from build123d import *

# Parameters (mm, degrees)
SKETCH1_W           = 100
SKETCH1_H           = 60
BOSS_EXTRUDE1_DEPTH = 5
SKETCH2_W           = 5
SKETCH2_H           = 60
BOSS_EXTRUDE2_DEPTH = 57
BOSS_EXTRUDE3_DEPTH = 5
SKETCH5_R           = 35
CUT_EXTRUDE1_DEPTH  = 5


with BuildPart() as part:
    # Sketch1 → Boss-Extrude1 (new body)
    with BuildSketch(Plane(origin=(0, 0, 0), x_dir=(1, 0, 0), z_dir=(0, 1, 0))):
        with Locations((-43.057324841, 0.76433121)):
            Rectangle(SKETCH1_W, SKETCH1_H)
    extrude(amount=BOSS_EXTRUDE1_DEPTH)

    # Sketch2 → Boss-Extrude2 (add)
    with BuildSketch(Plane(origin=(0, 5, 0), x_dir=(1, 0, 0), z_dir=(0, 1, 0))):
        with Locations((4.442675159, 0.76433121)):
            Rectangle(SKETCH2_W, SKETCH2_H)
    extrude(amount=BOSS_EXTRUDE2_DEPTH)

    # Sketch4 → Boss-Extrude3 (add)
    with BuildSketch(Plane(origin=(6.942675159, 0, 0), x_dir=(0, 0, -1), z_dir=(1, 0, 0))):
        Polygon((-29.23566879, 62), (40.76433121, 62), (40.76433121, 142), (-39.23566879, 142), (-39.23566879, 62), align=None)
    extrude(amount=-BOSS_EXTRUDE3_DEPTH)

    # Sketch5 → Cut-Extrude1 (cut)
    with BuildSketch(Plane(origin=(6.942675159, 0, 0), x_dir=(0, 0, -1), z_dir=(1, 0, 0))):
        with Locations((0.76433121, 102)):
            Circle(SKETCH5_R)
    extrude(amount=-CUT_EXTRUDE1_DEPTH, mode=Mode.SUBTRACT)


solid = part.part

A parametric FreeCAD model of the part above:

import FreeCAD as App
import Part
import Sketcher
from FreeCAD import Vector


def add_polygon(sketch, points):
    """Adds a closed chain of lines whose ends are joined by coincident constraints."""
    first, n = sketch.GeometryCount, len(points)
    for a, b in zip(points, points[1:] + points[:1]):
        sketch.addGeometry(Part.LineSegment(App.Vector(*a, 0), App.Vector(*b, 0)), False)
    for i in range(n):
        sketch.addConstraint(Sketcher.Constraint("Coincident", first + i, 2, first + (i + 1) % n, 1))

doc = App.newDocument("Part")
body = doc.addObject("PartDesign::Body", "Body")

sketch1 = body.newObject("Sketcher::SketchObject", "Sketch")
sketch1.AttachmentSupport = (doc.getObject("XZ_Plane"), [""])
sketch1.MapMode = "FlatFace"
add_polygon(sketch1, [(-93.057325, -30.764331), (-93.057325, 29.235669), (6.942675, 29.235669), (6.942675, -30.764331)])
sketch1.addConstraint([
    Sketcher.Constraint("Vertical", 0),
    Sketcher.Constraint("Horizontal", 1),
    Sketcher.Constraint("Vertical", 2),
    Sketcher.Constraint("Horizontal", 3),
    Sketcher.Constraint("DistanceX", 1, 1, 1, 2, 100.0),
    Sketcher.Constraint("DistanceY", 0, 1, 0, 2, 60.0),
    Sketcher.Constraint("DistanceY", -1, 1, 0, 2, 29.235669),
    Sketcher.Constraint("DistanceX", 0, 2, -1, 1, 93.057325),
])
pad1 = body.newObject("PartDesign::Pad", "Pad")
pad1.Profile = sketch1
pad1.Length = 5
pad1.Reversed = True

sketch2 = body.newObject("Sketcher::SketchObject", "Sketch001")
sketch2.AttachmentSupport = (doc.getObject("XZ_Plane"), [""])
sketch2.MapMode = "FlatFace"
sketch2.AttachmentOffset = App.Placement(Vector(0, 0, -5), App.Rotation())
add_polygon(sketch2, [(1.942675, -30.764331), (1.942675, 29.235669), (6.942675, 29.235669), (6.942675, -30.764331)])
sketch2.addConstraint([
    Sketcher.Constraint("Vertical", 0),
    Sketcher.Constraint("Horizontal", 1),
    Sketcher.Constraint("Vertical", 2),
    Sketcher.Constraint("Horizontal", 3),
    Sketcher.Constraint("DistanceX", 1, 1, 1, 2, 5.0),
    Sketcher.Constraint("DistanceY", 0, 1, 0, 2, 60.0),
    Sketcher.Constraint("DistanceY", -1, 1, 0, 2, 29.235669),
    Sketcher.Constraint("DistanceX", -1, 1, 0, 2, 1.942675),
])
pad2 = body.newObject("PartDesign::Pad", "Pad001")
pad2.Profile = sketch2
pad2.Length = 57
pad2.Reversed = True

sketch3 = body.newObject("Sketcher::SketchObject", "Sketch002")
sketch3.AttachmentSupport = (doc.getObject("YZ_Plane"), [""])
sketch3.MapMode = "FlatFace"
sketch3.AttachmentOffset = App.Placement(Vector(0, 0, 6.942675), App.Rotation())
add_polygon(sketch3, [(62, -40.764331), (142, -40.764331), (142, 39.235669), (62, 39.235669)])
sketch3.addConstraint([
    Sketcher.Constraint("Horizontal", 0),
    Sketcher.Constraint("Vertical", 1),
    Sketcher.Constraint("Horizontal", 2),
    Sketcher.Constraint("Vertical", 3),
    Sketcher.Constraint("Equal", 2, 1),
    Sketcher.Constraint("DistanceX", 0, 1, 0, 2, 80.0),
    Sketcher.Constraint("DistanceX", -1, 1, 0, 2, 142.0),
    Sketcher.Constraint("DistanceY", 0, 2, -1, 1, 40.764331),
])
pad3 = body.newObject("PartDesign::Pad", "Pad002")
pad3.Profile = sketch3
pad3.Length = 5
pad3.Reversed = True

sketch4 = body.newObject("Sketcher::SketchObject", "Sketch003")
sketch4.AttachmentSupport = (doc.getObject("YZ_Plane"), [""])
sketch4.MapMode = "FlatFace"
sketch4.AttachmentOffset = App.Placement(Vector(0, 0, 6.942675), App.Rotation())
sketch4.addGeometry(Part.Circle(Vector(102, -0.764331, 0), Vector(0, 0, 1), 35), False)
sketch4.addConstraint([
    Sketcher.Constraint("Diameter", 0, 70.0),
    Sketcher.Constraint("DistanceX", -1, 1, 0, 3, 102.0),
    Sketcher.Constraint("DistanceY", 0, 3, -1, 1, 0.764331),
])
pocket1 = body.newObject("PartDesign::Pocket", "Pocket")
pocket1.Profile = sketch4
pocket1.Length = 5

doc.recompute()
